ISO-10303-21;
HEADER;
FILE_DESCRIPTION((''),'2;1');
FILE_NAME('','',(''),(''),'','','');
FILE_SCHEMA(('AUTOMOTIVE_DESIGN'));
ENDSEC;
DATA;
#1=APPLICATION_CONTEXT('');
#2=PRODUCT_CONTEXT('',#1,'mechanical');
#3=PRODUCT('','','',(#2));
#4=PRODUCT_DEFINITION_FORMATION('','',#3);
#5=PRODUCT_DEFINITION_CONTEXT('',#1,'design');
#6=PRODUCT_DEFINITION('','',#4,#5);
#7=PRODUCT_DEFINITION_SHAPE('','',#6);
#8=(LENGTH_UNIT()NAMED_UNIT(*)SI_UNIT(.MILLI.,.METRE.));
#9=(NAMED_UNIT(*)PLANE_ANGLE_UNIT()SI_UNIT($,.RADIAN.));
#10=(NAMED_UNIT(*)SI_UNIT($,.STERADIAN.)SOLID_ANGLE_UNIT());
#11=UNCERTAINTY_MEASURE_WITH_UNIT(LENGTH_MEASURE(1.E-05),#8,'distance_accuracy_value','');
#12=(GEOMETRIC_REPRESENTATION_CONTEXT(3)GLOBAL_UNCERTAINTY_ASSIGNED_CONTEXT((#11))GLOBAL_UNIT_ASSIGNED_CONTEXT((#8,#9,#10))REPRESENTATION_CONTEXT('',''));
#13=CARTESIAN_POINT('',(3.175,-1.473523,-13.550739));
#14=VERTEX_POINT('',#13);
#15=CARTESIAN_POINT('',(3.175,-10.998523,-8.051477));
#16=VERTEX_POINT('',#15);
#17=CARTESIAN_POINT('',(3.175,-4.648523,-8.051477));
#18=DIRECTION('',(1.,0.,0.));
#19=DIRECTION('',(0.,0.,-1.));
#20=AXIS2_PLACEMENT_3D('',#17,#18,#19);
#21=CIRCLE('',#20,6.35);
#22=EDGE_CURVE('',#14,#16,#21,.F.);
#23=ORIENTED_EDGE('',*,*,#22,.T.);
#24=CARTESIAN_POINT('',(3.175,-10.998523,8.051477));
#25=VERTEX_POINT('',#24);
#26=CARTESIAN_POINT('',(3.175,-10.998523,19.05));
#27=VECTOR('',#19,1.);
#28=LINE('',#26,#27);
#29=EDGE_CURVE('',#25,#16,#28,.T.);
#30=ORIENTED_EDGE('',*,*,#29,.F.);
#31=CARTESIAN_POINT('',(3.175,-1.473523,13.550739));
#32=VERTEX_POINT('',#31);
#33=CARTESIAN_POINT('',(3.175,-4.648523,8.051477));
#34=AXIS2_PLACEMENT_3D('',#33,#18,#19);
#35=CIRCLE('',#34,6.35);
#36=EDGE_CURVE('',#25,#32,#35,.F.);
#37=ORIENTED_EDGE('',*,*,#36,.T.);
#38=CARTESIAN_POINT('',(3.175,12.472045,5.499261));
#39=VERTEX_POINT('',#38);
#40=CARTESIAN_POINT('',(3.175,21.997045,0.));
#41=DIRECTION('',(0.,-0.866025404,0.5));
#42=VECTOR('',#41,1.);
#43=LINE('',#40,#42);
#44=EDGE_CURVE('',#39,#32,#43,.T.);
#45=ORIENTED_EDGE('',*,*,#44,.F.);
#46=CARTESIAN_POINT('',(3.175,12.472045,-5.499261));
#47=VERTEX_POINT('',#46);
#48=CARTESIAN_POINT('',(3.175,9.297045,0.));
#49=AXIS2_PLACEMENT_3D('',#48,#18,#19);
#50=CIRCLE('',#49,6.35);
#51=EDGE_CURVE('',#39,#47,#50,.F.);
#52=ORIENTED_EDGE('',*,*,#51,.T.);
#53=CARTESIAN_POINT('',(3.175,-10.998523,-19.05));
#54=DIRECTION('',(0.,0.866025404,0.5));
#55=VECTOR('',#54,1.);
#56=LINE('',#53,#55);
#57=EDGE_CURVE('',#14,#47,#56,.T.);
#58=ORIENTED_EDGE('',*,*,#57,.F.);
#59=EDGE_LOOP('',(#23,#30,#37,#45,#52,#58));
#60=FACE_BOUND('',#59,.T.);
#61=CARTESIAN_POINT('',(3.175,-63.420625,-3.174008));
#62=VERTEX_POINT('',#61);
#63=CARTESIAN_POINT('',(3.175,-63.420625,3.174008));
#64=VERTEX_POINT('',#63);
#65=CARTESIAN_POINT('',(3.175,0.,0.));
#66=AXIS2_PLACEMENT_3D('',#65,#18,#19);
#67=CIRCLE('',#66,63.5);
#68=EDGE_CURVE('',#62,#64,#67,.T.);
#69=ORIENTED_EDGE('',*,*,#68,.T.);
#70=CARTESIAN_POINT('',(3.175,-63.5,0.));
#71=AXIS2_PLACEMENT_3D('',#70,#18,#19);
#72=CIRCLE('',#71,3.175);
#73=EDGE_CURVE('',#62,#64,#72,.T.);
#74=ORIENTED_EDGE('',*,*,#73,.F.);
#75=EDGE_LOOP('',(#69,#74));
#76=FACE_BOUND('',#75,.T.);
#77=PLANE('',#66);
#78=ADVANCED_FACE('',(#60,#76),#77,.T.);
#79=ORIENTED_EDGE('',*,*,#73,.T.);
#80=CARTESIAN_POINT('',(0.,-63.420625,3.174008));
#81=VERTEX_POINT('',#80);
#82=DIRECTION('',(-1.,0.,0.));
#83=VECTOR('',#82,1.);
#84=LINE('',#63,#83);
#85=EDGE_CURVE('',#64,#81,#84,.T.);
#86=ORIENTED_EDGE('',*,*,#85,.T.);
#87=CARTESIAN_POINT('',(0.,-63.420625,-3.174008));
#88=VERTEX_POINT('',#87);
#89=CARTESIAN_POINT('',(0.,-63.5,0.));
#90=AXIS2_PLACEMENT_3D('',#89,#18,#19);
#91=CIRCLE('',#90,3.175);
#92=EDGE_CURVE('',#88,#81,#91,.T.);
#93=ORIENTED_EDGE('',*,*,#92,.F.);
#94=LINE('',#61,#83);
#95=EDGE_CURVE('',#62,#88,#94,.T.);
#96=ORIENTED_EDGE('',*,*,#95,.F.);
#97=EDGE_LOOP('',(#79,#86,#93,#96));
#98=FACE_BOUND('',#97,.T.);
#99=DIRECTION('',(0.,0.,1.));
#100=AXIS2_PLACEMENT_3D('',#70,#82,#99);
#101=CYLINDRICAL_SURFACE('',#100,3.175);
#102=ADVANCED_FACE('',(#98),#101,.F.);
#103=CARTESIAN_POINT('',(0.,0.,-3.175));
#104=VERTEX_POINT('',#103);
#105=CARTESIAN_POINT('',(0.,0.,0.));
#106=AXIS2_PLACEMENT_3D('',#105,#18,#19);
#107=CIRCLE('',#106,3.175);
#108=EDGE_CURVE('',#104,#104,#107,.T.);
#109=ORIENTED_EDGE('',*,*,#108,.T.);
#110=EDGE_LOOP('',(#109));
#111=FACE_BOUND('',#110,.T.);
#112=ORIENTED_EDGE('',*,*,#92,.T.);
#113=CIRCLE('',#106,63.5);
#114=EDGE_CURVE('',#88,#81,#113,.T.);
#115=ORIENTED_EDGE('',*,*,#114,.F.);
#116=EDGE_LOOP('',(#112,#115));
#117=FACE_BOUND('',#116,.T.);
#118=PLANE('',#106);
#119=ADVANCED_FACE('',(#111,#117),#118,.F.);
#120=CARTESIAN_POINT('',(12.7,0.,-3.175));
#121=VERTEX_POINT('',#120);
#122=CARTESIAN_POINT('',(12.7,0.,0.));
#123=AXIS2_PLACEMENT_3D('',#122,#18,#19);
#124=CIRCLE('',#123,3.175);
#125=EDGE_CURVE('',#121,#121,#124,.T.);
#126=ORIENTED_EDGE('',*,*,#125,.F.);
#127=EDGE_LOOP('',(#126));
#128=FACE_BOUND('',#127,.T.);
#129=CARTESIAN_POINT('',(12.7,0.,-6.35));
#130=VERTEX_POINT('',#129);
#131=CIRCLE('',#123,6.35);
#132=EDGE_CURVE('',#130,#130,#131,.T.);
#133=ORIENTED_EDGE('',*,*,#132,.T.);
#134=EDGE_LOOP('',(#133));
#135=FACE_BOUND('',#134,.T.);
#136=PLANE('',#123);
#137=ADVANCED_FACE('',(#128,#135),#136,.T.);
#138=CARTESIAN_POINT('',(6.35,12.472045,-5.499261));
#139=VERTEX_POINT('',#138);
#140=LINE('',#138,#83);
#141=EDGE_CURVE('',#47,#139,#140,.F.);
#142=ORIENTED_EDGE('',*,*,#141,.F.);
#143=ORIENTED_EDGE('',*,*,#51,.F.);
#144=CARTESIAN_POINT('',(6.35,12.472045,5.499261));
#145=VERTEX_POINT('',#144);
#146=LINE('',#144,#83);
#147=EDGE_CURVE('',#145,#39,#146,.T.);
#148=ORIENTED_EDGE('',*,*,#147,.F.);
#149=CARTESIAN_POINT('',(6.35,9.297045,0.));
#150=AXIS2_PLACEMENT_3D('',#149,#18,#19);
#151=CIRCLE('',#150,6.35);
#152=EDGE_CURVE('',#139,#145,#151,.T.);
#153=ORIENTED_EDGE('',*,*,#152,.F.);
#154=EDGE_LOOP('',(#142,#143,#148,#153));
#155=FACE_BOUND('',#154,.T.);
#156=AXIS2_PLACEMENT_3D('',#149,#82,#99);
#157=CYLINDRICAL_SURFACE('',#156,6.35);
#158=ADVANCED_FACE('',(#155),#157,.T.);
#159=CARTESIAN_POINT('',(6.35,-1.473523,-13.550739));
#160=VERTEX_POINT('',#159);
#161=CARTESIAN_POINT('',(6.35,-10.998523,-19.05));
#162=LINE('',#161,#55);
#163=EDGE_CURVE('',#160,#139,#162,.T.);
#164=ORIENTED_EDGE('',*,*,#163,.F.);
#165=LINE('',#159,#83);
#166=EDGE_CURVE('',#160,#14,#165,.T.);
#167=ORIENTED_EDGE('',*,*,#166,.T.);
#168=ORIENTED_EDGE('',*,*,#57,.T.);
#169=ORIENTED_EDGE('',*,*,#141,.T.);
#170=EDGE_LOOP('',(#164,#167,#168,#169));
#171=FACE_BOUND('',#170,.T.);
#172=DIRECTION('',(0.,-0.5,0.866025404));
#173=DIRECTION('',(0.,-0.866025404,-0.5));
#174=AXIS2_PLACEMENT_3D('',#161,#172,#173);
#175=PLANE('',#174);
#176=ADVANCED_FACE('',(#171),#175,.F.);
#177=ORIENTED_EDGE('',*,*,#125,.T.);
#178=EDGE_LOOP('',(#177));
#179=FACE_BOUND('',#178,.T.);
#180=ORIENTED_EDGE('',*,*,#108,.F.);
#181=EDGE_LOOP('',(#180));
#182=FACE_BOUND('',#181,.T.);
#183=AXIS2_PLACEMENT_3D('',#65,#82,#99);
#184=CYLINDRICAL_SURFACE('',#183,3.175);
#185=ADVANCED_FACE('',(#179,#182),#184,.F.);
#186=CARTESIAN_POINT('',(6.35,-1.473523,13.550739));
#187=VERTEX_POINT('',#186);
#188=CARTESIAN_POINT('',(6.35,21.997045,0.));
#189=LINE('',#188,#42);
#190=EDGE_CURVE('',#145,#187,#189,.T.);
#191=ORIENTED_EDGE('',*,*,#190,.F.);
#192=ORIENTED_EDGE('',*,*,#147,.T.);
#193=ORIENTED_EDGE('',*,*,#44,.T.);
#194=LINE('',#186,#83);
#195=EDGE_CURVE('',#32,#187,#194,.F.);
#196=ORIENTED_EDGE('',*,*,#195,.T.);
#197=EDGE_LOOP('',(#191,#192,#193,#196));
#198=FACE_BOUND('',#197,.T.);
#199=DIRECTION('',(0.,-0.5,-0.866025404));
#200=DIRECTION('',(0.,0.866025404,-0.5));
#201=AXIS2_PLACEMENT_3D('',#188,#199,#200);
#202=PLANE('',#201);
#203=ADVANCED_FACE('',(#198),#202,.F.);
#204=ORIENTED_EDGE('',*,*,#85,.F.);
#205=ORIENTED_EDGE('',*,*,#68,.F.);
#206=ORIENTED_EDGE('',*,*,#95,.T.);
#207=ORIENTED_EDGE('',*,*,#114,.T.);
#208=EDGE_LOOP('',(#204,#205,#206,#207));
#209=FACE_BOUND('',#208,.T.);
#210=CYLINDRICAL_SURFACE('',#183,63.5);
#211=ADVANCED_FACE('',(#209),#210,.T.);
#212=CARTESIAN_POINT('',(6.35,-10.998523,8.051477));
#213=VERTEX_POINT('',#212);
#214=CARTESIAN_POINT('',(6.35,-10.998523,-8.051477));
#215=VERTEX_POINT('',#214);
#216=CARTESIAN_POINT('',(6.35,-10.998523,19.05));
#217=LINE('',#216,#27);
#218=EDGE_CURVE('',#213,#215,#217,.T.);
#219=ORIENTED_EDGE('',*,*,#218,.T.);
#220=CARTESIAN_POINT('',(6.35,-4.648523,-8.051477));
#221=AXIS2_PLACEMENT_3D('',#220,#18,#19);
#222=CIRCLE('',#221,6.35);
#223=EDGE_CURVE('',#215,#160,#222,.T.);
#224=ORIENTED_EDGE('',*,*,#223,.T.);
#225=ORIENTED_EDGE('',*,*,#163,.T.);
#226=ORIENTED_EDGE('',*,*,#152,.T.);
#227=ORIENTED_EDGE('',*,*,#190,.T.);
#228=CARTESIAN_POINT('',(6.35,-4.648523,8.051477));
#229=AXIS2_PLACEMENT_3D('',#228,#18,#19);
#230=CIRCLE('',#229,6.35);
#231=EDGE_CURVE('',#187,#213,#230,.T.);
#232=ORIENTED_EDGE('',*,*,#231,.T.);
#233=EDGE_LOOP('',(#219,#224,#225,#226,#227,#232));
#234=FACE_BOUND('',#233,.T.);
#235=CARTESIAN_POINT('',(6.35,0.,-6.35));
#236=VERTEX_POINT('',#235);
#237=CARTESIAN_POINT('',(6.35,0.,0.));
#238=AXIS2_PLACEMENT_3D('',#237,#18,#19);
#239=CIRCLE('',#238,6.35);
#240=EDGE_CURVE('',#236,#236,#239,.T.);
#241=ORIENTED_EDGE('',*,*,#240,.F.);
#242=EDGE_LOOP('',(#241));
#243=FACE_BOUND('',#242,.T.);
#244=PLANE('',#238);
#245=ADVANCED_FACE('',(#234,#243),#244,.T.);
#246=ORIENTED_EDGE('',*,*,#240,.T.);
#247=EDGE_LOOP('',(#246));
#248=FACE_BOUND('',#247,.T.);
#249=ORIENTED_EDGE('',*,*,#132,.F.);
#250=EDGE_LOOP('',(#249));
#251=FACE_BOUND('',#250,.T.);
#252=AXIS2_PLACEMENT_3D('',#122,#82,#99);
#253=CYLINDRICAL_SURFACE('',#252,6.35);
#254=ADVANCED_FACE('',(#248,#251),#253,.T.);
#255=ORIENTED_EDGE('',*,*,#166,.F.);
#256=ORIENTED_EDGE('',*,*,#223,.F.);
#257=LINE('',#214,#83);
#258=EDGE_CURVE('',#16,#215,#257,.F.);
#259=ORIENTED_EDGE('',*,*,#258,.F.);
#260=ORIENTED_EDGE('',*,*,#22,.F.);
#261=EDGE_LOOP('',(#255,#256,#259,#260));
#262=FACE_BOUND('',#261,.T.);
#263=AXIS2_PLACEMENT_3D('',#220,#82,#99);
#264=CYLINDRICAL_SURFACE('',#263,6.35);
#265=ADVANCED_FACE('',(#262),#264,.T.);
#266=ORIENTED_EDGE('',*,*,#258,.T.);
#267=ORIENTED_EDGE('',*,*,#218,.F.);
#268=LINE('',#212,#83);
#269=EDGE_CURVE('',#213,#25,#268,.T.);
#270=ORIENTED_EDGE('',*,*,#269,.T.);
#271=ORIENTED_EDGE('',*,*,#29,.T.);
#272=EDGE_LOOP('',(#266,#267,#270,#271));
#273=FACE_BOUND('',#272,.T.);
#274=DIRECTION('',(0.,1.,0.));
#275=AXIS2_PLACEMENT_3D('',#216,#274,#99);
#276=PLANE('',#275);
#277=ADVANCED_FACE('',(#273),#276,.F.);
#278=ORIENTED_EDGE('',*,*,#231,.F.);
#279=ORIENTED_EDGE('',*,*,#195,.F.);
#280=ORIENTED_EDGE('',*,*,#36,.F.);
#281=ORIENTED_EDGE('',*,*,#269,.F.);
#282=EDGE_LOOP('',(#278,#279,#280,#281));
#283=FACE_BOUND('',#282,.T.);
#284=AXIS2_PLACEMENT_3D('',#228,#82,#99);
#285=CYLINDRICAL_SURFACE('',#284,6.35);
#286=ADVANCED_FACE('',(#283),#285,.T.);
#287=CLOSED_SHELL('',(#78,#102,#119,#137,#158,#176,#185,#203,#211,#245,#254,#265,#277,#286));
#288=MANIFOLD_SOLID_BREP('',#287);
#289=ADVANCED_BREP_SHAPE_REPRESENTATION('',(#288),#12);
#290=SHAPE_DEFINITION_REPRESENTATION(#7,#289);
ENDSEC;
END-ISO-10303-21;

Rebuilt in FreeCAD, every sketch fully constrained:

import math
import FreeCAD as App
import Part
import Sketcher
from FreeCAD import Vector
Q = App.Units.Quantity


def edges_at(feature, points):
    """Names of the edges that pass closest to the given points."""
    edges = feature.Shape.Edges
    near = lambda p: min(range(len(edges)), key=lambda i: edges[i].distToShape(Part.Vertex(*p))[0])
    return sorted({f"Edge{near(p) + 1}" for p in points})


def add_polygon(sketch, points):
    """Adds a closed chain of lines whose ends are joined by coincident constraints."""
    first, n = sketch.GeometryCount, len(points)
    for a, b in zip(points, points[1:] + points[:1]):
        sketch.addGeometry(Part.LineSegment(App.Vector(*a, 0), App.Vector(*b, 0)), False)
    for i in range(n):
        sketch.addConstraint(Sketcher.Constraint("Coincident", first + i, 2, first + (i + 1) % n, 1))

doc = App.newDocument("Part")
body = doc.addObject("PartDesign::Body", "Body")

# Sketch on YZ plane
sketch1 = doc.addObject("Sketcher::SketchObject", "Sketch")
body.addObject(sketch1)
sketch1.AttachmentSupport = (doc.YZ_Plane, [""])
sketch1.MapMode = "FlatFace"
sketch1.addGeometry([
    Part.ArcOfCircle(Part.Circle(Vector(-63.5, 0, 0), Vector(0, 0, 1), 3.175), math.radians(-88.567456), math.radians(88.567456)),
    Part.ArcOfCircle(Part.Circle(Vector(0, 0, 0), Vector(0, 0, 1), 63.5), math.radians(-177.134913), math.radians(177.134913)),
    Part.Circle(Vector(0, 0, 0), Vector(0, 0, 1), 3.175),
], False)
sketch1.addConstraint([
    Sketcher.Constraint("Coincident", 0, 1, 1, 1),
    Sketcher.Constraint("Coincident", 1, 2, 0, 2),
    Sketcher.Constraint("Coincident", 1, 3, -1, 1),
    Sketcher.Constraint("Coincident", 2, 3, -1, 1),
    Sketcher.Constraint("Equal", 0, 2),
    Sketcher.Constraint("PointOnObject", 0, 3, -1),
    Sketcher.Constraint("Radius", 1, Q("2.5 in")),
    Sketcher.Constraint("Diameter", 2, Q("0.25 in")),
    Sketcher.Constraint("DistanceX", 0, 3, -1, 1, Q("2.5 in")),
])
pad1 = doc.addObject("PartDesign::Pad", "Pad")
body.addObject(pad1)
pad1.Profile = sketch1
pad1.Length = Q("0.125 in")

# Sketch on YZ plane
sketch2 = doc.addObject("Sketcher::SketchObject", "Sketch001")
body.addObject(sketch2)
sketch2.AttachmentSupport = (doc.YZ_Plane, [""])
sketch2.MapMode = "FlatFace"
sketch2.AttachmentOffset = App.Placement(Vector(0, 0, 0.125 * 25.4), App.Rotation())
add_polygon(sketch2, [(21.997045, 0), (-10.998523, 19.05), (-10.998523, -19.05)])  # lines 0-2
sketch2.addGeometry(Part.Circle(Vector(0, 0, 0), Vector(0, 0, 1), 3.175), False)  # 3
sketch2.addConstraint([
    Sketcher.Constraint("Vertical", 1),
    Sketcher.Constraint("Coincident", 3, 3, -1, 1),
    Sketcher.Constraint("PointOnObject", 2, 2, -1),
    Sketcher.Constraint("Equal", 0, 2),
    Sketcher.Constraint("Diameter", 3, Q("0.25 in")),
    Sketcher.Constraint("DistanceY", 1, 2, 1, 1, Q("1.5 in")),
    Sketcher.Constraint("Angle", 0, Q("150 deg")),
    Sketcher.Constraint("DistanceX", 0, 2, -1, 1, Q("10.998523 mm")),
])
pad2 = doc.addObject("PartDesign::Pad", "Pad001")
body.addObject(pad2)
pad2.Profile = sketch2
pad2.Length = Q("0.125 in")

# Sketch on YZ plane
sketch3 = doc.addObject("Sketcher::SketchObject", "Sketch002")
body.addObject(sketch3)
sketch3.AttachmentSupport = (doc.YZ_Plane, [""])
sketch3.MapMode = "FlatFace"
sketch3.AttachmentOffset = App.Placement(Vector(0, 0, 0.25 * 25.4), App.Rotation())
sketch3.addGeometry([
    Part.Circle(Vector(0, 0, 0), Vector(0, 0, 1), 6.35),
    Part.Circle(Vector(0, 0, 0), Vector(0, 0, 1), 3.175),
], False)
sketch3.addConstraint([
    Sketcher.Constraint("Coincident", 0, 3, -1, 1),
    Sketcher.Constraint("Coincident", 1, 3, -1, 1),
    Sketcher.Constraint("Diameter", 0, Q("0.5 in")),
    Sketcher.Constraint("Diameter", 1, Q("0.25 in")),
])
pad3 = doc.addObject("PartDesign::Pad", "Pad002")
body.addObject(pad3)
pad3.Profile = sketch3
pad3.Length = Q("0.25 in")
doc.recompute()

fillet = doc.addObject("PartDesign::Fillet", "Fillet")
body.addObject(fillet)
fillet.Base = (pad3, edges_at(pad3, [(4.763, -10.999, -19.05), (4.763, 21.997, 0), (4.763, -10.999, 19.05)]))
fillet.Radius = Q("0.25 in")

doc.recompute()
